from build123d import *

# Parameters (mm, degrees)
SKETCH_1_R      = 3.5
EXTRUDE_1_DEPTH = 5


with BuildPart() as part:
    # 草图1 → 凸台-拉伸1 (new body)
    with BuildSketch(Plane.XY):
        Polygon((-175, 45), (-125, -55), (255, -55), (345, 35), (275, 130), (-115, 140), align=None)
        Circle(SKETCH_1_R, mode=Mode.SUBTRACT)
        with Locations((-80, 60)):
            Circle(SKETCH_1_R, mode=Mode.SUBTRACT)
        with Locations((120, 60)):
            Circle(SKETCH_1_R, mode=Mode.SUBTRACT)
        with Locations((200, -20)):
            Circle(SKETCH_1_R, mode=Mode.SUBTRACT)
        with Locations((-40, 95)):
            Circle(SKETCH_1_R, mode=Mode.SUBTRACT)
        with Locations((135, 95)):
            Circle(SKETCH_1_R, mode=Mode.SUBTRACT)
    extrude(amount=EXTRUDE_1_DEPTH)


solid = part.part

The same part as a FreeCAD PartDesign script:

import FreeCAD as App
import Part
import Sketcher

V = App.Vector
Q = App.Units.Quantity

doc = App.newDocument("Part")
body = doc.addObject("PartDesign::Body", "Body")

sketch1 = doc.addObject("Sketcher::SketchObject", "Sketch")
body.addObject(sketch1)
sketch1.AttachmentSupport = (doc.XY_Plane, [""])
sketch1.MapMode = "FlatFace"
sketch1.addGeometry(Part.LineSegment(V(-175, 45, 0), V(-125, -55, 0)), False)
sketch1.addGeometry(Part.LineSegment(V(-125, -55, 0), V(255, -55, 0)), False)
sketch1.addGeometry(Part.LineSegment(V(255, -55, 0), V(345, 35, 0)), False)
sketch1.addGeometry(Part.LineSegment(V(345, 35, 0), V(275, 130, 0)), False)
sketch1.addGeometry(Part.LineSegment(V(275, 130, 0), V(-115, 140, 0)), False)
sketch1.addGeometry(Part.LineSegment(V(-115, 140, 0), V(-175, 45, 0)), False)
sketch1.addGeometry(Part.Circle(V(0, 0, 0), V(0, 0, 1), 3.5), False)
sketch1.addGeometry(Part.Circle(V(200, -20, 0), V(0, 0, 1), 3.5), False)
sketch1.addGeometry(Part.Circle(V(-80, 60, 0), V(0, 0, 1), 3.5), False)
sketch1.addGeometry(Part.Circle(V(-40, 95, 0), V(0, 0, 1), 3.5), False)
sketch1.addGeometry(Part.Circle(V(120, 60, 0), V(0, 0, 1), 3.5), False)
sketch1.addGeometry(Part.Circle(V(135, 95, 0), V(0, 0, 1), 3.5), False)
sketch1.addConstraint(Sketcher.Constraint("Coincident", 0, 2, 1, 1))
sketch1.addConstraint(Sketcher.Constraint("Coincident", 1, 2, 2, 1))
sketch1.addConstraint(Sketcher.Constraint("Coincident", 2, 2, 3, 1))
sketch1.addConstraint(Sketcher.Constraint("Coincident", 3, 2, 4, 1))
sketch1.addConstraint(Sketcher.Constraint("Coincident", 4, 2, 5, 1))
sketch1.addConstraint(Sketcher.Constraint("Coincident", 5, 2, 0, 1))
sketch1.addConstraint(Sketcher.Constraint("Horizontal", 1))
sketch1.addConstraint(Sketcher.Constraint("Coincident", 6, 3, -1, 1))
sketch1.addConstraint(Sketcher.Constraint("Equal", 6, 7))
sketch1.addConstraint(Sketcher.Constraint("Equal", 7, 8))
sketch1.addConstraint(Sketcher.Constraint("Equal", 8, 9))
sketch1.addConstraint(Sketcher.Constraint("Equal", 9, 10))
sketch1.addConstraint(Sketcher.Constraint("Equal", 10, 11))
sketch1.addConstraint(Sketcher.Constraint("Horizontal", 8, 3, 10, 3))
sketch1.addConstraint(Sketcher.Constraint("Horizontal", 9, 3, 11, 3))
sketch1.addConstraint(Sketcher.Constraint("Diameter", 6, Q("7 mm")))
sketch1.addConstraint(Sketcher.Constraint("DistanceX", 1, 1, 1, 2, Q("380 mm")))
sketch1.addConstraint(Sketcher.Constraint("Angle", 2, Q("45 deg")))
sketch1.addConstraint(Sketcher.Constraint("DistanceX", -1, 1, 7, 3, Q("200 mm")))
sketch1.addConstraint(Sketcher.Constraint("DistanceY", 7, 3, -1, 1, Q("20 mm")))
sketch1.addConstraint(Sketcher.Constraint("DistanceX", 8, 3, -1, 1, Q("80 mm")))
sketch1.addConstraint(Sketcher.Constraint("DistanceY", -1, 1, 8, 3, Q("60 mm")))
sketch1.addConstraint(Sketcher.Constraint("DistanceX", 9, 3, -1, 1, Q("40 mm")))
sketch1.addConstraint(Sketcher.Constraint("DistanceY", -1, 1, 9, 3, Q("95 mm")))
sketch1.addConstraint(Sketcher.Constraint("DistanceX", -1, 1, 10, 3, Q("120 mm")))
sketch1.addConstraint(Sketcher.Constraint("DistanceX", -1, 1, 11, 3, Q("135 mm")))
sketch1.addConstraint(Sketcher.Constraint("DistanceX", 0, 2, -1, 1, Q("125 mm")))
sketch1.addConstraint(Sketcher.Constraint("DistanceY", 0, 2, -1, 1, Q("55 mm")))
sketch1.addConstraint(Sketcher.Constraint("DistanceX", -1, 1, 2, 2, Q("345 mm")))
sketch1.addConstraint(Sketcher.Constraint("DistanceX", -1, 1, 3, 2, Q("275 mm")))
sketch1.addConstraint(Sketcher.Constraint("DistanceY", -1, 1, 3, 2, Q("130 mm")))
sketch1.addConstraint(Sketcher.Constraint("DistanceX", 4, 2, -1, 1, Q("115 mm")))
sketch1.addConstraint(Sketcher.Constraint("DistanceY", -1, 1, 4, 2, Q("140 mm")))
sketch1.addConstraint(Sketcher.Constraint("DistanceX", 5, 2, -1, 1, Q("175 mm")))
sketch1.addConstraint(Sketcher.Constraint("DistanceY", -1, 1, 5, 2, Q("45 mm")))
pad1 = doc.addObject("PartDesign::Pad", "Pad")
body.addObject(pad1)
pad1.Profile = sketch1
pad1.Length = 5

doc.recompute()
